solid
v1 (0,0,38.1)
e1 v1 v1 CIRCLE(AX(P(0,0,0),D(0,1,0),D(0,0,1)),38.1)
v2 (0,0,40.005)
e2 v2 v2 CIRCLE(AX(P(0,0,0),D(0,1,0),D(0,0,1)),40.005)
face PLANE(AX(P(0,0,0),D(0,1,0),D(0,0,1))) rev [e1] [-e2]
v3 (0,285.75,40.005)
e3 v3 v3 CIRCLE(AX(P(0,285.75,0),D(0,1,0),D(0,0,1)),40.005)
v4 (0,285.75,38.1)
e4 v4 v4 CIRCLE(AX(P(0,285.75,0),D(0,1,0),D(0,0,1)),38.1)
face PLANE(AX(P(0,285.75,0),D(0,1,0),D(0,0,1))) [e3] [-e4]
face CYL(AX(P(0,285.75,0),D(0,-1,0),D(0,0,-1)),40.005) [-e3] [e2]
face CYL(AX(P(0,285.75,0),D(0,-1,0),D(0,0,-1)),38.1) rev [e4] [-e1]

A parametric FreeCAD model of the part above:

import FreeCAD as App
import Part
import Sketcher
from FreeCAD import Vector
Q = App.Units.Quantity

doc = App.newDocument("Part")
body = doc.addObject("PartDesign::Body", "Body")

# Sketch on XZ plane
sketch1 = body.newObject("Sketcher::SketchObject", "Sketch")
sketch1.AttachmentSupport = (doc.getObject("XZ_Plane"), [""])
sketch1.MapMode = "FlatFace"
sketch1.addGeometry([
    Part.Circle(Vector(0, 0, 0), Vector(0, 0, 1), 40),
    Part.Circle(Vector(0, 0, 0), Vector(0, 0, 1), 38),
], False)
sketch1.addConstraint([
    Sketcher.Constraint("Coincident", 0, 3, -1, 1),
    Sketcher.Constraint("Coincident", 1, 3, -1, 1),
    Sketcher.Constraint("Diameter", 1, Q("3 in")),
    Sketcher.Constraint("Diameter", 0, Q("3.15 in")),
])
pad1 = body.newObject("PartDesign::Pad", "Pad")
pad1.Profile = sketch1
pad1.Length = Q("11.25 in")
pad1.Reversed = True

doc.recompute()
